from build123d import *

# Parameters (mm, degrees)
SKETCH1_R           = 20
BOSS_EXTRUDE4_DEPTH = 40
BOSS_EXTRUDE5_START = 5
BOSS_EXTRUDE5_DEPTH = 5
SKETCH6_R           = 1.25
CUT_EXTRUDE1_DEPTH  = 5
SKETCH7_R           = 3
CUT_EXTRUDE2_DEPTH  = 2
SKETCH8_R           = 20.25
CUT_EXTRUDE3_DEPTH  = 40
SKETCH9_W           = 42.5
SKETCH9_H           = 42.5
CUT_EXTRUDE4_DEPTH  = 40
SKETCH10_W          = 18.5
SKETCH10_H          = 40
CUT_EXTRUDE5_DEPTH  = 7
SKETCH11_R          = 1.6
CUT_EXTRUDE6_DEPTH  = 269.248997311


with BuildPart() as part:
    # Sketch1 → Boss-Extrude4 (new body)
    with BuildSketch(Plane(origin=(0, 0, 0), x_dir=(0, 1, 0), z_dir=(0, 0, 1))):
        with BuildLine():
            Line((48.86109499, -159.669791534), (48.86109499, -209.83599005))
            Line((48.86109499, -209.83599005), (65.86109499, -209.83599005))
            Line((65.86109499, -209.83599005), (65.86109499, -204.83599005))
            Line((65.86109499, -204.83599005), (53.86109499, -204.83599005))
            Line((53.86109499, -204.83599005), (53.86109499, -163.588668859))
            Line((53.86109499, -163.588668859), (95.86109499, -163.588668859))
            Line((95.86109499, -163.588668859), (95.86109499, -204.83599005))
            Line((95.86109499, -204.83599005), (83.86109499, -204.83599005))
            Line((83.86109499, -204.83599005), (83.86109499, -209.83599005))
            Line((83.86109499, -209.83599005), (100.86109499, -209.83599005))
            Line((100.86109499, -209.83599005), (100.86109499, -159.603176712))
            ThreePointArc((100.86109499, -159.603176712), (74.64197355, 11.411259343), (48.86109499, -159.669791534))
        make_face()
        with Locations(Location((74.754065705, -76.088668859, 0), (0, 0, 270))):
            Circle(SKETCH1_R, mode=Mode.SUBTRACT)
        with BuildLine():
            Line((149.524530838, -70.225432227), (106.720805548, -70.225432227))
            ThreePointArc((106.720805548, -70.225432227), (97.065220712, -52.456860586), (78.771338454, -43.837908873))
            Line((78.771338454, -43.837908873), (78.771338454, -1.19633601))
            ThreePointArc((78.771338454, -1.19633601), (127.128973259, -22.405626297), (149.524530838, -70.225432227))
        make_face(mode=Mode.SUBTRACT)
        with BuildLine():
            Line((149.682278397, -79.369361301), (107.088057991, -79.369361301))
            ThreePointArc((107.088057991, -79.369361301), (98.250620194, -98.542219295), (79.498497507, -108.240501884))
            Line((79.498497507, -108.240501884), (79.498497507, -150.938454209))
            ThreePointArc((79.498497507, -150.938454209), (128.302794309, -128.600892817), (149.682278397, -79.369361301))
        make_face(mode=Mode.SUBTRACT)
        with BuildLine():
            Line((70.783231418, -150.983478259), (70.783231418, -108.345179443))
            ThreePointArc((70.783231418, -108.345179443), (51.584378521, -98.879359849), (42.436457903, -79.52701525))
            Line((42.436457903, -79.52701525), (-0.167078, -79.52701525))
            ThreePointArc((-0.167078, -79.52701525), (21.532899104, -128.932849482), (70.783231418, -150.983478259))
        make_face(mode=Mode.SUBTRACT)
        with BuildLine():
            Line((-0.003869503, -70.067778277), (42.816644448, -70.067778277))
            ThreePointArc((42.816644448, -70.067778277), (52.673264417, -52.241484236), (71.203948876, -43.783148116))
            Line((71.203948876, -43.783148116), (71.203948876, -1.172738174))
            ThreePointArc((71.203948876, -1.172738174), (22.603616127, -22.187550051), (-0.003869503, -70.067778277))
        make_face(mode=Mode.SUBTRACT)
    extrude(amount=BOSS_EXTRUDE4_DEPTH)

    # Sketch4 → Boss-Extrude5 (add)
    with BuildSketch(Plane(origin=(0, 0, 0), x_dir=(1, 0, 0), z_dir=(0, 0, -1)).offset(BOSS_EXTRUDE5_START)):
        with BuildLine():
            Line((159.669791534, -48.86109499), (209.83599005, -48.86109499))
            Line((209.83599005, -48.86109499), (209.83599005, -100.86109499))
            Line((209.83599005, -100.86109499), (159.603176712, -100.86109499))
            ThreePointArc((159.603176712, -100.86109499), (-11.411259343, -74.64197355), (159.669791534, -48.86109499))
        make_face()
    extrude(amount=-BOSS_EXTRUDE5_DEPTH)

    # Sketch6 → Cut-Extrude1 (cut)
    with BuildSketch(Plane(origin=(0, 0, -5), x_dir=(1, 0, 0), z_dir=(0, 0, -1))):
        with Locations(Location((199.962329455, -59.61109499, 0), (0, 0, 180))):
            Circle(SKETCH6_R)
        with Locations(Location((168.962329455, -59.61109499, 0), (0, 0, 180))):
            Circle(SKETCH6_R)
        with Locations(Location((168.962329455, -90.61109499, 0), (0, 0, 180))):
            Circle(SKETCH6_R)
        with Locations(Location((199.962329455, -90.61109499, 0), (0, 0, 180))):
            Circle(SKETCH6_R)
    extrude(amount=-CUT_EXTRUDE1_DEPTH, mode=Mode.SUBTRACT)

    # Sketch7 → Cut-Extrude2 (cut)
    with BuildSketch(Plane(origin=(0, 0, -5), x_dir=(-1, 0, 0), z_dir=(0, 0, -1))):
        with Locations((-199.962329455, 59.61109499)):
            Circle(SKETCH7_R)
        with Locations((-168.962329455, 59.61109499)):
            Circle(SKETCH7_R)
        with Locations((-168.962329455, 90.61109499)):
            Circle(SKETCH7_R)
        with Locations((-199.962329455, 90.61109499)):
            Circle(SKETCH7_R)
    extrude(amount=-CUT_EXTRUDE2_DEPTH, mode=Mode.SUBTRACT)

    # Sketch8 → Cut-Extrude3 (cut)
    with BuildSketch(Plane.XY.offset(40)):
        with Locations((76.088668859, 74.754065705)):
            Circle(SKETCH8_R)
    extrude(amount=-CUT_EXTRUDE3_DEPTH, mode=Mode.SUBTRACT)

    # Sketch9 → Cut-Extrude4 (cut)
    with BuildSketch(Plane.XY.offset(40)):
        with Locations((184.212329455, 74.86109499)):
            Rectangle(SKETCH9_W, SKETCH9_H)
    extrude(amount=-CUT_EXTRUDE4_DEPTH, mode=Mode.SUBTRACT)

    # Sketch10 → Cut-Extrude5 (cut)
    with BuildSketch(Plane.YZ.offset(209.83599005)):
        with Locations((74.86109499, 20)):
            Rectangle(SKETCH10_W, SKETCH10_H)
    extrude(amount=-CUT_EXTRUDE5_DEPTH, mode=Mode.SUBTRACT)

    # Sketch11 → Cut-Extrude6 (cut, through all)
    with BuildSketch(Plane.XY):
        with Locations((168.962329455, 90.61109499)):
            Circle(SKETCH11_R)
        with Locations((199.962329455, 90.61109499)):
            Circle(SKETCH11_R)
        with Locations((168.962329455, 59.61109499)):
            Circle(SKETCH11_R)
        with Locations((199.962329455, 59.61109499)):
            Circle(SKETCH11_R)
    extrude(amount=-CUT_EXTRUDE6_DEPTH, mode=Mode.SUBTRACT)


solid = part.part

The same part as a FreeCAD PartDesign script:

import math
import FreeCAD as App
import Part
import Sketcher


def add_polygon(sketch, points):
    """Adds a closed chain of lines whose ends are joined by coincident constraints."""
    first, n = sketch.GeometryCount, len(points)
    for a, b in zip(points, points[1:] + points[:1]):
        sketch.addGeometry(Part.LineSegment(App.Vector(*a, 0), App.Vector(*b, 0)), False)
    for i in range(n):
        sketch.addConstraint(Sketcher.Constraint("Coincident", first + i, 2, first + (i + 1) % n, 1))

doc = App.newDocument("Part")
body = doc.addObject("PartDesign::Body", "Body")

sketch1 = doc.addObject("Sketcher::SketchObject", "Sketch")
body.addObject(sketch1)
sketch1.AttachmentSupport = (doc.XY_Plane, [""])
sketch1.MapMode = "FlatFace"
sketch1.addGeometry(Part.LineSegment(App.Vector(160, 49, 0), App.Vector(210, 49, 0)), False)
sketch1.addGeometry(Part.LineSegment(App.Vector(210, 49, 0), App.Vector(210, 66, 0)), False)
sketch1.addGeometry(Part.LineSegment(App.Vector(210, 66, 0), App.Vector(205, 66, 0)), False)
sketch1.addGeometry(Part.LineSegment(App.Vector(205, 66, 0), App.Vector(205, 54, 0)), False)
sketch1.addGeometry(Part.LineSegment(App.Vector(205, 54, 0), App.Vector(164, 54, 0)), False)
sketch1.addGeometry(Part.LineSegment(App.Vector(164, 54, 0), App.Vector(164, 96, 0)), False)
sketch1.addGeometry(Part.LineSegment(App.Vector(164, 96, 0), App.Vector(205, 96, 0)), False)
sketch1.addGeometry(Part.LineSegment(App.Vector(205, 96, 0), App.Vector(205, 84, 0)), False)
sketch1.addGeometry(Part.LineSegment(App.Vector(205, 84, 0), App.Vector(210, 84, 0)), False)
sketch1.addGeometry(Part.LineSegment(App.Vector(210, 84, 0), App.Vector(210, 101, 0)), False)
sketch1.addGeometry(Part.LineSegment(App.Vector(210, 101, 0), App.Vector(160, 101, 0)), False)
sketch1.addGeometry(Part.ArcOfCircle(Part.Circle(App.Vector(76, 75, 0), App.Vector(0, 0, 1), 88), math.radians(17), math.radians(343)), False)
sketch1.addGeometry(Part.LineSegment(App.Vector(108, 71, 0), App.Vector(151, 71, 0)), False)
sketch1.addGeometry(Part.ArcOfCircle(Part.Circle(App.Vector(76, 75, 0), App.Vector(0, 0, 1), 75), math.radians(-87), math.radians(-3)), False)
sketch1.addGeometry(Part.LineSegment(App.Vector(80, 0, 0), App.Vector(80, 42, 0)), False)
sketch1.addGeometry(Part.ArcOfCircle(Part.Circle(App.Vector(76, 75, 0), App.Vector(0, 0, 1), 32), math.radians(-84), math.radians(-7)), False)
sketch1.addGeometry(Part.Circle(App.Vector(76, 75, 0), App.Vector(0, 0, 1), 20), False)
sketch1.addGeometry(Part.LineSegment(App.Vector(79, 107, 0), App.Vector(79, 150, 0)), False)
sketch1.addGeometry(Part.ArcOfCircle(Part.Circle(App.Vector(76, 75, 0), App.Vector(0, 0, 1), 75), math.radians(4), math.radians(87)), False)
sketch1.addGeometry(Part.LineSegment(App.Vector(151, 79, 0), App.Vector(108, 79, 0)), False)
sketch1.addGeometry(Part.ArcOfCircle(Part.Circle(App.Vector(76, 75, 0), App.Vector(0, 0, 1), 32), math.radians(8), math.radians(84)), False)
sketch1.addGeometry(Part.LineSegment(App.Vector(70, 43, 0), App.Vector(70, 0, 0)), False)
sketch1.addGeometry(Part.ArcOfCircle(Part.Circle(App.Vector(76, 75, 0), App.Vector(0, 0, 1), 75), math.radians(-177), math.radians(-95)), False)
sketch1.addGeometry(Part.LineSegment(App.Vector(1, 71, 0), App.Vector(44, 71, 0)), False)
sketch1.addGeometry(Part.ArcOfCircle(Part.Circle(App.Vector(76, 75, 0), App.Vector(0, 0, 1), 32), math.radians(-174), math.radians(-101)), False)
sketch1.addGeometry(Part.ArcOfCircle(Part.Circle(App.Vector(76, 75, 0), App.Vector(0, 0, 1), 75), math.radians(94), math.radians(177)), False)
sketch1.addGeometry(Part.LineSegment(App.Vector(70, 150, 0), App.Vector(70, 107, 0)), False)
sketch1.addGeometry(Part.ArcOfCircle(Part.Circle(App.Vector(76, 75, 0), App.Vector(0, 0, 1), 32), math.radians(100), math.radians(173)), False)
sketch1.addGeometry(Part.LineSegment(App.Vector(44, 79, 0), App.Vector(1, 79, 0)), False)
sketch1.addConstraint(Sketcher.Constraint("Coincident", 0, 2, 1, 1))
sketch1.addConstraint(Sketcher.Constraint("Coincident", 1, 2, 2, 1))
sketch1.addConstraint(Sketcher.Constraint("Coincident", 2, 2, 3, 1))
sketch1.addConstraint(Sketcher.Constraint("Coincident", 3, 2, 4, 1))
sketch1.addConstraint(Sketcher.Constraint("Coincident", 4, 2, 5, 1))
sketch1.addConstraint(Sketcher.Constraint("Coincident", 5, 2, 6, 1))
sketch1.addConstraint(Sketcher.Constraint("Coincident", 6, 2, 7, 1))
sketch1.addConstraint(Sketcher.Constraint("Coincident", 7, 2, 8, 1))
sketch1.addConstraint(Sketcher.Constraint("Coincident", 8, 2, 9, 1))
sketch1.addConstraint(Sketcher.Constraint("Coincident", 9, 2, 10, 1))
sketch1.addConstraint(Sketcher.Constraint("Coincident", 10, 2, 11, 1))
sketch1.addConstraint(Sketcher.Constraint("Coincident", 11, 2, 0, 1))
sketch1.addConstraint(Sketcher.Constraint("Coincident", 12, 2, 13, 2))
sketch1.addConstraint(Sketcher.Constraint("Coincident", 13, 1, 14, 1))
sketch1.addConstraint(Sketcher.Constraint("Coincident", 14, 2, 15, 1))
sketch1.addConstraint(Sketcher.Constraint("Coincident", 15, 2, 12, 1))
sketch1.addConstraint(Sketcher.Constraint("Coincident", 17, 2, 18, 2))
sketch1.addConstraint(Sketcher.Constraint("Coincident", 18, 1, 19, 1))
sketch1.addConstraint(Sketcher.Constraint("Coincident", 19, 2, 20, 1))
sketch1.addConstraint(Sketcher.Constraint("Coincident", 20, 2, 17, 1))
sketch1.addConstraint(Sketcher.Constraint("Coincident", 21, 2, 22, 2))
sketch1.addConstraint(Sketcher.Constraint("Coincident", 22, 1, 23, 1))
sketch1.addConstraint(Sketcher.Constraint("Coincident", 23, 2, 24, 1))
sketch1.addConstraint(Sketcher.Constraint("Coincident", 24, 2, 21, 1))
sketch1.addConstraint(Sketcher.Constraint("Coincident", 25, 1, 26, 1))
sketch1.addConstraint(Sketcher.Constraint("Coincident", 26, 2, 27, 1))
sketch1.addConstraint(Sketcher.Constraint("Coincident", 27, 2, 28, 1))
sketch1.addConstraint(Sketcher.Constraint("Coincident", 28, 2, 25, 2))
sketch1.addConstraint(Sketcher.Constraint("Horizontal", 0))
sketch1.addConstraint(Sketcher.Constraint("Vertical", 1))
sketch1.addConstraint(Sketcher.Constraint("Horizontal", 2))
sketch1.addConstraint(Sketcher.Constraint("Vertical", 3))
sketch1.addConstraint(Sketcher.Constraint("Horizontal", 4))
sketch1.addConstraint(Sketcher.Constraint("Vertical", 5))
sketch1.addConstraint(Sketcher.Constraint("Horizontal", 6))
sketch1.addConstraint(Sketcher.Constraint("Vertical", 7))
sketch1.addConstraint(Sketcher.Constraint("Horizontal", 8))
sketch1.addConstraint(Sketcher.Constraint("Vertical", 9))
sketch1.addConstraint(Sketcher.Constraint("Horizontal", 10))
sketch1.addConstraint(Sketcher.Constraint("Horizontal", 12))
sketch1.addConstraint(Sketcher.Constraint("Vertical", 14))
sketch1.addConstraint(Sketcher.Constraint("Vertical", 17))
sketch1.addConstraint(Sketcher.Constraint("Horizontal", 19))
sketch1.addConstraint(Sketcher.Constraint("Vertical", 21))
sketch1.addConstraint(Sketcher.Constraint("Horizontal", 23))
sketch1.addConstraint(Sketcher.Constraint("Vertical", 26))
sketch1.addConstraint(Sketcher.Constraint("Horizontal", 28))
sketch1.addConstraint(Sketcher.Constraint("Coincident", 13, 3, 11, 3))
sketch1.addConstraint(Sketcher.Constraint("Coincident", 15, 3, 11, 3))
sketch1.addConstraint(Sketcher.Constraint("Coincident", 16, 3, 11, 3))
sketch1.addConstraint(Sketcher.Constraint("Coincident", 18, 3, 11, 3))
sketch1.addConstraint(Sketcher.Constraint("Coincident", 20, 3, 11, 3))
sketch1.addConstraint(Sketcher.Constraint("Coincident", 22, 3, 11, 3))
sketch1.addConstraint(Sketcher.Constraint("Coincident", 24, 3, 11, 3))
sketch1.addConstraint(Sketcher.Constraint("Coincident", 25, 3, 11, 3))
sketch1.addConstraint(Sketcher.Constraint("Coincident", 27, 3, 11, 3))
sketch1.addConstraint(Sketcher.Constraint("Equal", 13, 18))
sketch1.addConstraint(Sketcher.Constraint("Equal", 15, 20))
sketch1.addConstraint(Sketcher.Constraint("Equal", 18, 22))
sketch1.addConstraint(Sketcher.Constraint("Equal", 20, 24))
sketch1.addConstraint(Sketcher.Constraint("Equal", 22, 25))
sketch1.addConstraint(Sketcher.Constraint("Equal", 24, 27))
sketch1.addConstraint(Sketcher.Constraint("Vertical", 3, 2, 6, 2))
sketch1.addConstraint(Sketcher.Constraint("Vertical", 1, 2, 8, 2))
sketch1.addConstraint(Sketcher.Constraint("Equal", 3, 7))
sketch1.addConstraint(Sketcher.Constraint("Equal", 1, 9))
sketch1.addConstraint(Sketcher.Constraint("Diameter", 16, 40.0))
sketch1.addConstraint(Sketcher.Constraint("Radius", 13, 75.0))
sketch1.addConstraint(Sketcher.Constraint("Radius", 11, 87.5))
sketch1.addConstraint(Sketcher.Constraint("Radius", 15, 32.5))
sketch1.addConstraint(Sketcher.Constraint("DistanceX", 2, 2, 2, 1, 5.0))
sketch1.addConstraint(Sketcher.Constraint("DistanceY", 1, 1, 1, 2, 17.0))
sketch1.addConstraint(Sketcher.Constraint("DistanceY", 3, 2, 3, 1, 12.0))
sketch1.addConstraint(Sketcher.Constraint("DistanceY", 5, 1, 5, 2, 42.0))
sketch1.addConstraint(Sketcher.Constraint("DistanceX", 13, 3, 4, 2, 87.5))
sketch1.addConstraint(Sketcher.Constraint("DistanceX", 0, 1, 0, 2, 50.166199))
sketch1.addConstraint(Sketcher.Constraint("DistanceX", 12, 1, 12, 2, 42.638299))
sketch1.addConstraint(Sketcher.Constraint("DistanceX", 4, 2, 4, 1, 41.247321))
sketch1.addConstraint(Sketcher.Constraint("DistanceX", 23, 1, 23, 2, 42.61041))
sketch1.addConstraint(Sketcher.Constraint("DistanceY", 17, 1, 17, 2, 42.59422))
sketch1.addConstraint(Sketcher.Constraint("DistanceX", -1, 1, 19, 2, 108.240502))
sketch1.addConstraint(Sketcher.Constraint("DistanceX", 19, 2, 19, 1, 42.697952))
sketch1.addConstraint(Sketcher.Constraint("DistanceX", 28, 2, 28, 1, 42.641573))
sketch1.addConstraint(Sketcher.Constraint("DistanceY", 14, 1, 14, 2, 42.603536))
sketch1.addConstraint(Sketcher.Constraint("DistanceY", 21, 2, 21, 1, 42.820514))
sketch1.addConstraint(Sketcher.Constraint("DistanceY", 26, 2, 26, 1, 42.803725))
sketch1.addConstraint(Sketcher.Constraint("DistanceY", -1, 1, 12, 2, 70.783231))
pad1 = doc.addObject("PartDesign::Pad", "Pad")
body.addObject(pad1)
pad1.Profile = sketch1
pad1.Length = 40

sketch2 = doc.addObject("Sketcher::SketchObject", "Sketch001")
body.addObject(sketch2)
sketch2.AttachmentSupport = (doc.XY_Plane, [""])
sketch2.MapMode = "FlatFace"
sketch2.AttachmentOffset = App.Placement(App.Vector(0, 0, -5), App.Rotation())
sketch2.addGeometry(Part.LineSegment(App.Vector(210, 49, 0), App.Vector(160, 49, 0)), False)
sketch2.addGeometry(Part.ArcOfCircle(Part.Circle(App.Vector(76, 75, 0), App.Vector(0, 0, 1), 88), math.radians(17), math.radians(343)), False)
sketch2.addGeometry(Part.LineSegment(App.Vector(160, 101, 0), App.Vector(210, 101, 0)), False)
sketch2.addGeometry(Part.LineSegment(App.Vector(210, 101, 0), App.Vector(210, 49, 0)), False)
sketch2.addConstraint(Sketcher.Constraint("Coincident", 0, 2, 1, 2))
sketch2.addConstraint(Sketcher.Constraint("Coincident", 1, 1, 2, 1))
sketch2.addConstraint(Sketcher.Constraint("Coincident", 2, 2, 3, 1))
sketch2.addConstraint(Sketcher.Constraint("Coincident", 3, 2, 0, 1))
sketch2.addConstraint(Sketcher.Constraint("Horizontal", 0))
sketch2.addConstraint(Sketcher.Constraint("Horizontal", 2))
sketch2.addConstraint(Sketcher.Constraint("Vertical", 3))
sketch2.addConstraint(Sketcher.Constraint("Radius", 1, 87.5))
sketch2.addConstraint(Sketcher.Constraint("DistanceY", 3, 2, 3, 1, 52.0))
sketch2.addConstraint(Sketcher.Constraint("DistanceX", 0, 2, 0, 1, 50.166199))
sketch2.addConstraint(Sketcher.Constraint("DistanceX", 2, 1, 2, 2, 50.232813))
sketch2.addConstraint(Sketcher.Constraint("DistanceX", -1, 1, 1, 3, 76.088669))
sketch2.addConstraint(Sketcher.Constraint("DistanceY", -1, 1, 1, 3, 74.754066))
pad2 = doc.addObject("PartDesign::Pad", "Pad001")
body.addObject(pad2)
pad2.Profile = sketch2
pad2.Length = 5

sketch3 = doc.addObject("Sketcher::SketchObject", "Sketch002")
body.addObject(sketch3)
sketch3.AttachmentSupport = (doc.XY_Plane, [""])
sketch3.MapMode = "FlatFace"
sketch3.AttachmentOffset = App.Placement(App.Vector(0, 0, -5), App.Rotation())
sketch3.addGeometry(Part.Circle(App.Vector(200, 59.6, 0), App.Vector(0, 0, 1), 1.2), False)
sketch3.addGeometry(Part.Circle(App.Vector(169, 59.6, 0), App.Vector(0, 0, 1), 1.2), False)
sketch3.addGeometry(Part.Circle(App.Vector(169, 90.6, 0), App.Vector(0, 0, 1), 1.2), False)
sketch3.addGeometry(Part.Circle(App.Vector(200, 90.6, 0), App.Vector(0, 0, 1), 1.2), False)
sketch3.addConstraint(Sketcher.Constraint("Equal", 0, 1))
sketch3.addConstraint(Sketcher.Constraint("Equal", 1, 2))
sketch3.addConstraint(Sketcher.Constraint("Equal", 2, 3))
sketch3.addConstraint(Sketcher.Constraint("Horizontal", 0, 3, 1, 3))
sketch3.addConstraint(Sketcher.Constraint("Horizontal", 2, 3, 3, 3))
sketch3.addConstraint(Sketcher.Constraint("Vertical", 1, 3, 2, 3))
sketch3.addConstraint(Sketcher.Constraint("Vertical", 0, 3, 3, 3))
sketch3.addConstraint(Sketcher.Constraint("Diameter", 0, 2.5))
sketch3.addConstraint(Sketcher.Constraint("DistanceX", 1, 3, 0, 3, 31.0))
sketch3.addConstraint(Sketcher.Constraint("DistanceY", 1, 3, 2, 3, 31.0))
sketch3.addConstraint(Sketcher.Constraint("DistanceX", -1, 1, 0, 3, 199.962329))
sketch3.addConstraint(Sketcher.Constraint("DistanceY", -1, 1, 0, 3, 59.611095))
pocket1 = doc.addObject("PartDesign::Pocket", "Pocket")
body.addObject(pocket1)
pocket1.Profile = sketch3
pocket1.Length = 5
pocket1.Reversed = True

sketch4 = doc.addObject("Sketcher::SketchObject", "Sketch003")
body.addObject(sketch4)
sketch4.AttachmentSupport = (doc.XY_Plane, [""])
sketch4.MapMode = "FlatFace"
sketch4.AttachmentOffset = App.Placement(App.Vector(0, 0, -5), App.Rotation())
sketch4.addGeometry(Part.Circle(App.Vector(200, 59.6, 0), App.Vector(0, 0, 1), 3), False)
sketch4.addGeometry(Part.Circle(App.Vector(169, 59.6, 0), App.Vector(0, 0, 1), 3), False)
sketch4.addGeometry(Part.Circle(App.Vector(169, 90.6, 0), App.Vector(0, 0, 1), 3), False)
sketch4.addGeometry(Part.Circle(App.Vector(200, 90.6, 0), App.Vector(0, 0, 1), 3), False)
sketch4.addConstraint(Sketcher.Constraint("Equal", 0, 1))
sketch4.addConstraint(Sketcher.Constraint("Equal", 1, 2))
sketch4.addConstraint(Sketcher.Constraint("Equal", 2, 3))
sketch4.addConstraint(Sketcher.Constraint("Horizontal", 0, 3, 1, 3))
sketch4.addConstraint(Sketcher.Constraint("Horizontal", 2, 3, 3, 3))
sketch4.addConstraint(Sketcher.Constraint("Vertical", 1, 3, 2, 3))
sketch4.addConstraint(Sketcher.Constraint("Vertical", 0, 3, 3, 3))
sketch4.addConstraint(Sketcher.Constraint("Diameter", 0, 6.0))
sketch4.addConstraint(Sketcher.Constraint("DistanceX", 1, 3, 0, 3, 31.0))
sketch4.addConstraint(Sketcher.Constraint("DistanceY", 1, 3, 2, 3, 31.0))
sketch4.addConstraint(Sketcher.Constraint("DistanceX", -1, 1, 0, 3, 199.962329))
sketch4.addConstraint(Sketcher.Constraint("DistanceY", -1, 1, 0, 3, 59.611095))
pocket2 = doc.addObject("PartDesign::Pocket", "Pocket001")
body.addObject(pocket2)
pocket2.Profile = sketch4
pocket2.Length = 2
pocket2.Reversed = True

sketch5 = doc.addObject("Sketcher::SketchObject", "Sketch004")
body.addObject(sketch5)
sketch5.AttachmentSupport = (doc.XY_Plane, [""])
sketch5.MapMode = "FlatFace"
sketch5.AttachmentOffset = App.Placement(App.Vector(0, 0, 40), App.Rotation())
sketch5.addGeometry(Part.Circle(App.Vector(76, 75, 0), App.Vector(0, 0, 1), 20), False)
sketch5.addConstraint(Sketcher.Constraint("Diameter", 0, 40.5))
sketch5.addConstraint(Sketcher.Constraint("DistanceX", -1, 1, 0, 3, 76.088669))
sketch5.addConstraint(Sketcher.Constraint("DistanceY", -1, 1, 0, 3, 74.754066))
pocket3 = doc.addObject("PartDesign::Pocket", "Pocket002")
body.addObject(pocket3)
pocket3.Profile = sketch5
pocket3.Length = 40

sketch6 = doc.addObject("Sketcher::SketchObject", "Sketch005")
body.addObject(sketch6)
sketch6.AttachmentSupport = (doc.XY_Plane, [""])
sketch6.MapMode = "FlatFace"
sketch6.AttachmentOffset = App.Placement(App.Vector(0, 0, 40), App.Rotation())
add_polygon(sketch6, [(163, 96), (163, 54), (205, 54), (205, 96)])
sketch6.addConstraint(Sketcher.Constraint("Vertical", 0))
sketch6.addConstraint(Sketcher.Constraint("Horizontal", 1))
sketch6.addConstraint(Sketcher.Constraint("Vertical", 2))
sketch6.addConstraint(Sketcher.Constraint("Horizontal", 3))
sketch6.addConstraint(Sketcher.Constraint("Equal", 3, 0))
sketch6.addConstraint(Sketcher.Constraint("DistanceX", 1, 1, 1, 2, 42.5))
sketch6.addConstraint(Sketcher.Constraint("DistanceX", -1, 1, 0, 2, 162.962329))
sketch6.addConstraint(Sketcher.Constraint("DistanceY", -1, 1, 0, 2, 53.611095))
pocket4 = doc.addObject("PartDesign::Pocket", "Pocket003")
body.addObject(pocket4)
pocket4.Profile = sketch6
pocket4.Length = 40

sketch7 = doc.addObject("Sketcher::SketchObject", "Sketch006")
body.addObject(sketch7)
sketch7.AttachmentSupport = (doc.YZ_Plane, [""])
sketch7.MapMode = "FlatFace"
sketch7.AttachmentOffset = App.Placement(App.Vector(0, 0, 209.83599), App.Rotation())
add_polygon(sketch7, [(66, 40), (66, 0), (84, 0), (84, 40)])
sketch7.addConstraint(Sketcher.Constraint("Vertical", 0))
sketch7.addConstraint(Sketcher.Constraint("Horizontal", 1))
sketch7.addConstraint(Sketcher.Constraint("Vertical", 2))
sketch7.addConstraint(Sketcher.Constraint("Horizontal", 3))
sketch7.addConstraint(Sketcher.Constraint("PointOnObject", 0, 2, -1))
sketch7.addConstraint(Sketcher.Constraint("DistanceY", 0, 2, 0, 1, 40.0))
sketch7.addConstraint(Sketcher.Constraint("DistanceX", 1, 1, 1, 2, 18.5))
sketch7.addConstraint(Sketcher.Constraint("DistanceX", -1, 1, 0, 2, 65.611095))
pocket5 = doc.addObject("PartDesign::Pocket", "Pocket004")
body.addObject(pocket5)
pocket5.Profile = sketch7
pocket5.Length = 7

sketch8 = doc.addObject("Sketcher::SketchObject", "Sketch007")
body.addObject(sketch8)
sketch8.AttachmentSupport = (doc.XY_Plane, [""])
sketch8.MapMode = "FlatFace"
sketch8.addGeometry(Part.Circle(App.Vector(169, 90.6, 0), App.Vector(0, 0, 1), 1.6), False)
sketch8.addGeometry(Part.Circle(App.Vector(200, 90.6, 0), App.Vector(0, 0, 1), 1.6), False)
sketch8.addGeometry(Part.Circle(App.Vector(169, 59.6, 0), App.Vector(0, 0, 1), 1.6), False)
sketch8.addGeometry(Part.Circle(App.Vector(200, 59.6, 0), App.Vector(0, 0, 1), 1.6), False)
sketch8.addConstraint(Sketcher.Constraint("Equal", 0, 1))
sketch8.addConstraint(Sketcher.Constraint("Equal", 1, 2))
sketch8.addConstraint(Sketcher.Constraint("Equal", 2, 3))
sketch8.addConstraint(Sketcher.Constraint("Horizontal", 0, 3, 1, 3))
sketch8.addConstraint(Sketcher.Constraint("Horizontal", 2, 3, 3, 3))
sketch8.addConstraint(Sketcher.Constraint("Vertical", 0, 3, 2, 3))
sketch8.addConstraint(Sketcher.Constraint("Vertical", 1, 3, 3, 3))
sketch8.addConstraint(Sketcher.Constraint("Diameter", 0, 3.2))
sketch8.addConstraint(Sketcher.Constraint("DistanceX", 0, 3, 1, 3, 31.0))
sketch8.addConstraint(Sketcher.Constraint("DistanceY", 2, 3, 0, 3, 31.0))
sketch8.addConstraint(Sketcher.Constraint("DistanceX", -1, 1, 0, 3, 168.962329))
sketch8.addConstraint(Sketcher.Constraint("DistanceY", -1, 1, 0, 3, 90.611095))
pocket6 = doc.addObject("PartDesign::Pocket", "Pocket005")
body.addObject(pocket6)
pocket6.Profile = sketch8
pocket6.Type = "ThroughAll"

doc.recompute()
